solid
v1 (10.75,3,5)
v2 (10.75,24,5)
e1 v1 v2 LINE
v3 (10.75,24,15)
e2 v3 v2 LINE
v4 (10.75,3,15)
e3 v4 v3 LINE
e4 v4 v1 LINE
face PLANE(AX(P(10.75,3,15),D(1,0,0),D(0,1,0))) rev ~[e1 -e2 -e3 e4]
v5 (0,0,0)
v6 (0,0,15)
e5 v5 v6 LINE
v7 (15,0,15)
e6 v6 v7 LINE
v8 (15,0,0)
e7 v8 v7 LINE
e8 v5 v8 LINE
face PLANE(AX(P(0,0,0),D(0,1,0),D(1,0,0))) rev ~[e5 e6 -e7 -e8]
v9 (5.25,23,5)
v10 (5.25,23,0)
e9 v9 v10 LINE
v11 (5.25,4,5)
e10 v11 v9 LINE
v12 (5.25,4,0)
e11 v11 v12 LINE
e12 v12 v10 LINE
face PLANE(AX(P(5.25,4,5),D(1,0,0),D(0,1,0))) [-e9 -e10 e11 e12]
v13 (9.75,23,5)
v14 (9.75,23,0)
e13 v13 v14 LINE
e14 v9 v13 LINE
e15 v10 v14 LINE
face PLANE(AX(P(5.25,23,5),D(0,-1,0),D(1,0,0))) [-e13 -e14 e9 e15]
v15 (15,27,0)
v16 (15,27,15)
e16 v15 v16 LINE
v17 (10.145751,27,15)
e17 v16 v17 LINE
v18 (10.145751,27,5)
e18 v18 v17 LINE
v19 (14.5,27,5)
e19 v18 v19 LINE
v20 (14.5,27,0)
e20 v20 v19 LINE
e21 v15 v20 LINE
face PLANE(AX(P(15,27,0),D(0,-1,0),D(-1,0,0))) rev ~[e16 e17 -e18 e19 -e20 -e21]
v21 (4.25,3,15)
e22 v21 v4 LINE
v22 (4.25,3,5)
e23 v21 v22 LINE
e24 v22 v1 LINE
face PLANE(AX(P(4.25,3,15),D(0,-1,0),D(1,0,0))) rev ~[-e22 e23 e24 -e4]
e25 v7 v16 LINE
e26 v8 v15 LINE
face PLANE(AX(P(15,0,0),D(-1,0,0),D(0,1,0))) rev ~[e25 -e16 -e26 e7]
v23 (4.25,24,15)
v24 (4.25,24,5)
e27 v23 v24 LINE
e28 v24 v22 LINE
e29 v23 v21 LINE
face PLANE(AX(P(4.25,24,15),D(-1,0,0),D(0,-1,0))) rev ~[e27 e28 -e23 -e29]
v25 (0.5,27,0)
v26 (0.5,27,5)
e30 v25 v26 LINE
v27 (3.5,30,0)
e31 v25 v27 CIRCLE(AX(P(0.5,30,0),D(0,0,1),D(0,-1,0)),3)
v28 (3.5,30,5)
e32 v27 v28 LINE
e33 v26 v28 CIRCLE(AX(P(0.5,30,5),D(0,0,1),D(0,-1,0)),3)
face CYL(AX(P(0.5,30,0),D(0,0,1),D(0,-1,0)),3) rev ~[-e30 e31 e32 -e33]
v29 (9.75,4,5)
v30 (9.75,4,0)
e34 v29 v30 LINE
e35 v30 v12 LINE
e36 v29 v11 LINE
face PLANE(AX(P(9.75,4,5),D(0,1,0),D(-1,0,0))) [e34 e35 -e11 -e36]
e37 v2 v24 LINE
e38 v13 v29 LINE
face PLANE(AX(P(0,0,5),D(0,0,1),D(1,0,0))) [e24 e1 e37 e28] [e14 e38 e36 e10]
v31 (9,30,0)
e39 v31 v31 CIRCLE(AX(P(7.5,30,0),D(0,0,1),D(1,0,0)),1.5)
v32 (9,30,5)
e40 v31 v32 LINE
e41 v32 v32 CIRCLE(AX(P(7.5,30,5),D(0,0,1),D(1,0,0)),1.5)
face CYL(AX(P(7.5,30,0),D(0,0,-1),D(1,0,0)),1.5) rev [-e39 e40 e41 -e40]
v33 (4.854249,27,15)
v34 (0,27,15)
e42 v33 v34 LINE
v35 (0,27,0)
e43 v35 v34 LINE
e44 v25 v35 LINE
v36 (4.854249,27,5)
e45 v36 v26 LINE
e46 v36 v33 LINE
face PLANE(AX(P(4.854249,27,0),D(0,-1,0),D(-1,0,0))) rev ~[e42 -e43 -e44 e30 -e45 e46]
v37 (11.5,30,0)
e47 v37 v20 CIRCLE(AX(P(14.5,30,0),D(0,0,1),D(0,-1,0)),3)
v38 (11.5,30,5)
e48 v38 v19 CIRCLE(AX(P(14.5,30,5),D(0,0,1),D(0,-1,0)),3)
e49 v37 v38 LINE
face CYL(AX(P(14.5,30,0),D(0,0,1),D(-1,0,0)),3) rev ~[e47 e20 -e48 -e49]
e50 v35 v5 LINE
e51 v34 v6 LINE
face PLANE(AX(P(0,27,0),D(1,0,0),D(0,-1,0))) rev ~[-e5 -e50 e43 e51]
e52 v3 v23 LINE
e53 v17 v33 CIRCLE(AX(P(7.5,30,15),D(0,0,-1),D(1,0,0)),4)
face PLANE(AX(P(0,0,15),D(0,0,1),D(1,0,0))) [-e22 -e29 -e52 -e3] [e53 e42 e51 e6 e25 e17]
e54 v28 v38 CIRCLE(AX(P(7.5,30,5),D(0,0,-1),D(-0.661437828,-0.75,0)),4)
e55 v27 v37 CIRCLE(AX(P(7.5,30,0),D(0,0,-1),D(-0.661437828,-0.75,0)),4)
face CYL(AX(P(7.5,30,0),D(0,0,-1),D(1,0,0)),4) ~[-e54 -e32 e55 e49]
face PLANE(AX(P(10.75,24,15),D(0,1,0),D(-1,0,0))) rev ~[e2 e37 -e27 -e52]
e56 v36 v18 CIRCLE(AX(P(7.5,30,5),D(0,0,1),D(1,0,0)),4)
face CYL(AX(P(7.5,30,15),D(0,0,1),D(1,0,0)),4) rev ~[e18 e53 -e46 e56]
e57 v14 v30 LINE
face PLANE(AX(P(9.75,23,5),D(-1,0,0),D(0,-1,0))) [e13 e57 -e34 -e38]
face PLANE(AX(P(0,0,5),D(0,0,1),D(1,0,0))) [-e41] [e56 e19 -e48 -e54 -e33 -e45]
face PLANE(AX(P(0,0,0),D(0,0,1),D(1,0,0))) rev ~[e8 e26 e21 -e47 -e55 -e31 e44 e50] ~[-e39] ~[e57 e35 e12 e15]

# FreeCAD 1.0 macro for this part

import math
import FreeCAD as App
import Part
import Sketcher

V = App.Vector
Q = App.Units.Quantity


def edges_at(feature, points):
    """Names of the edges that pass closest to the given points."""
    edges = feature.Shape.Edges
    near = lambda p: min(range(len(edges)), key=lambda i: edges[i].distToShape(Part.Vertex(*p))[0])
    return sorted({f"Edge{near(p) + 1}" for p in points})

doc = App.newDocument("Part")
params = doc.addObject("Spreadsheet::Sheet", "Params")
for row, (alias, value) in enumerate([
    ("sketch1_diameter", "3 mm"),
    ("sketch1_radius", "4 mm"),
    ("sketch1_width", "15 mm"),
    ("sketch1_height", "27 mm"),
    ("pad1_length", "15 mm"),
    ("sketch2_height", "21 mm"),
    ("sketch2_diameter", "8 mm"),
    ("sketch2_diameter2", "3 mm"),
    ("sketch2_width", "6.5 mm"),
    ("pocket1_length", "10 mm"),
    ("fillet_radius", "3 mm"),
    ("sketch3_height", "19 mm"),
    ("sketch3_width", "4.5 mm"),
    ("pocket2_length", "10 mm"),
], start=1):
    params.set(f"A{row}", alias)
    params.set(f"B{row}", "=" + value)
    params.setAlias(f"B{row}", alias)

body = doc.addObject("PartDesign::Body", "Body")

# Sketch on XY plane
sketch1 = body.newObject("Sketcher::SketchObject", "Sketch")
sketch1.AttachmentSupport = (doc.getObject("XY_Plane"), [""])
sketch1.MapMode = "FlatFace"
sketch1.addGeometry([
    Part.LineSegment(V(0, 27, 0), V(0, 0, 0)),  # 0
    Part.LineSegment(V(0, 0, 0), V(15, 0, 0)),  # 1
    Part.LineSegment(V(15, 0, 0), V(15, 27, 0)),  # 2
    Part.LineSegment(V(15, 27, 0), V(10.1, 27, 0)),  # 3
    Part.ArcOfCircle(Part.Circle(V(7.5, 30, 0), V(0, 0, 1), 4), math.radians(-49), math.radians(229)),  # 4
    Part.LineSegment(V(4.9, 27, 0), V(0, 27, 0)),  # 5
    Part.Circle(V(7.5, 30, 0), V(0, 0, 1), 1.5),  # 6
], False)
sketch1.addConstraint([
    Sketcher.Constraint("Coincident", 0, 2, 1, 1),
    Sketcher.Constraint("Coincident", 1, 2, 2, 1),
    Sketcher.Constraint("Coincident", 2, 2, 3, 1),
    Sketcher.Constraint("Coincident", 3, 2, 4, 1),
    Sketcher.Constraint("Coincident", 4, 2, 5, 1),
    Sketcher.Constraint("Coincident", 5, 2, 0, 1),
    Sketcher.Constraint("Vertical", 0),
    Sketcher.Constraint("Horizontal", 1),
    Sketcher.Constraint("Vertical", 2),
    Sketcher.Constraint("Horizontal", 3),
    Sketcher.Constraint("Horizontal", 5),
    Sketcher.Constraint("Coincident", 0, 2, -1, 1),
    Sketcher.Constraint("Coincident", 6, 3, 4, 3),
    Sketcher.Constraint("Horizontal", 3, 2, 4, 2),
    Sketcher.Constraint("Equal", 3, 5),
    Sketcher.Constraint("Diameter", 6, Q("3 mm")),
    Sketcher.Constraint("Radius", 4, Q("4 mm")),
    Sketcher.Constraint("DistanceX", 1, 1, 1, 2, Q("15 mm")),
    Sketcher.Constraint("DistanceY", 0, 2, 0, 1, Q("27 mm")),
    Sketcher.Constraint("DistanceY", 2, 2, 4, 3, Q("3 mm")),
])
sketch1.setExpression("Constraints[15]", "Params.sketch1_diameter")
sketch1.setExpression("Constraints[16]", "Params.sketch1_radius")
sketch1.setExpression("Constraints[17]", "Params.sketch1_width")
sketch1.setExpression("Constraints[18]", "Params.sketch1_height")
pad1 = body.newObject("PartDesign::Pad", "Pad")
pad1.Profile = sketch1
pad1.setExpression("Length", "Params.pad1_length")

# Sketch on XY plane
sketch2 = body.newObject("Sketcher::SketchObject", "Sketch001")
sketch2.AttachmentSupport = (doc.getObject("XY_Plane"), [""])
sketch2.MapMode = "FlatFace"
sketch2.AttachmentOffset = App.Placement(V(0, 0, 15), App.Rotation())
sketch2.addGeometry([
    Part.Circle(V(7.5, 30, 0), V(0, 0, 1), 4),  # 0
    Part.Circle(V(7.5, 30, 0), V(0, 0, 1), 1.5),  # 1
    Part.LineSegment(V(4.2, 24, 0), V(4.2, 3, 0)),  # 2
    Part.LineSegment(V(4.2, 3, 0), V(10.8, 3, 0)),  # 3
    Part.LineSegment(V(10.8, 3, 0), V(10.8, 24, 0)),  # 4
    Part.LineSegment(V(10.8, 24, 0), V(4.2, 24, 0)),  # 5
], False)
sketch2.addConstraint([
    Sketcher.Constraint("Coincident", 2, 2, 3, 1),
    Sketcher.Constraint("Coincident", 3, 2, 4, 1),
    Sketcher.Constraint("Coincident", 4, 2, 5, 1),
    Sketcher.Constraint("Coincident", 5, 2, 2, 1),
    Sketcher.Constraint("Vertical", 2),
    Sketcher.Constraint("Horizontal", 3),
    Sketcher.Constraint("Vertical", 4),
    Sketcher.Constraint("Horizontal", 5),
    Sketcher.Constraint("Coincident", 1, 3, 0, 3),
    Sketcher.Constraint("DistanceY", 2, 2, 2, 1, Q("21 mm")),
    Sketcher.Constraint("Diameter", 0, Q("8 mm")),
    Sketcher.Constraint("Diameter", 1, Q("3 mm")),
    Sketcher.Constraint("DistanceX", 3, 1, 3, 2, Q("6.5 mm")),
    Sketcher.Constraint("DistanceY", -1, 1, 0, 3, Q("30 mm")),
    Sketcher.Constraint("DistanceY", -1, 1, 2, 2, Q("3 mm")),
    Sketcher.Constraint("DistanceX", -1, 1, 0, 3, Q("7.5 mm")),
    Sketcher.Constraint("DistanceX", -1, 1, 2, 2, Q("4.25 mm")),
])
sketch2.setExpression("Constraints[9]", "Params.sketch2_height")
sketch2.setExpression("Constraints[10]", "Params.sketch2_diameter")
sketch2.setExpression("Constraints[11]", "Params.sketch2_diameter2")
sketch2.setExpression("Constraints[12]", "Params.sketch2_width")
pocket1 = body.newObject("PartDesign::Pocket", "Pocket")
pocket1.Profile = sketch2
pocket1.setExpression("Length", "Params.pocket1_length")
doc.recompute()

fillet = body.newObject("PartDesign::Fillet", "Fillet")
fillet.Base = (pocket1, edges_at(pocket1, [(10.146, 27, 2.5), (4.854, 27, 2.5)]))
fillet.setExpression("Radius", "Params.fillet_radius")

# Sketch on XY plane
sketch3 = body.newObject("Sketcher::SketchObject", "Sketch002")
sketch3.AttachmentSupport = (doc.getObject("XY_Plane"), [""])
sketch3.MapMode = "FlatFace"
sketch3.AttachmentOffset = App.Placement(V(0, 0, 5), App.Rotation())
sketch3.addGeometry([
    Part.LineSegment(V(9.8, 23, 0), V(5.2, 23, 0)),
    Part.LineSegment(V(5.2, 23, 0), V(5.2, 4, 0)),
    Part.LineSegment(V(5.2, 4, 0), V(9.8, 4, 0)),
    Part.LineSegment(V(9.8, 4, 0), V(9.8, 23, 0)),
], False)
sketch3.addConstraint([
    Sketcher.Constraint("Coincident", 0, 2, 1, 1),
    Sketcher.Constraint("Coincident", 1, 2, 2, 1),
    Sketcher.Constraint("Coincident", 2, 2, 3, 1),
    Sketcher.Constraint("Coincident", 3, 2, 0, 1),
    Sketcher.Constraint("Horizontal", 0),
    Sketcher.Constraint("Vertical", 1),
    Sketcher.Constraint("Horizontal", 2),
    Sketcher.Constraint("Vertical", 3),
    Sketcher.Constraint("DistanceY", 1, 2, 1, 1, Q("19 mm")),
    Sketcher.Constraint("DistanceX", 0, 2, 0, 1, Q("4.5 mm")),
    Sketcher.Constraint("DistanceY", -1, 1, 0, 2, Q("23 mm")),
    Sketcher.Constraint("DistanceX", -1, 1, 0, 2, Q("5.25 mm")),
])
sketch3.setExpression("Constraints[8]", "Params.sketch3_height")
sketch3.setExpression("Constraints[9]", "Params.sketch3_width")
pocket2 = body.newObject("PartDesign::Pocket", "Pocket001")
pocket2.Profile = sketch3
pocket2.setExpression("Length", "Params.pocket2_length")

doc.recompute()
